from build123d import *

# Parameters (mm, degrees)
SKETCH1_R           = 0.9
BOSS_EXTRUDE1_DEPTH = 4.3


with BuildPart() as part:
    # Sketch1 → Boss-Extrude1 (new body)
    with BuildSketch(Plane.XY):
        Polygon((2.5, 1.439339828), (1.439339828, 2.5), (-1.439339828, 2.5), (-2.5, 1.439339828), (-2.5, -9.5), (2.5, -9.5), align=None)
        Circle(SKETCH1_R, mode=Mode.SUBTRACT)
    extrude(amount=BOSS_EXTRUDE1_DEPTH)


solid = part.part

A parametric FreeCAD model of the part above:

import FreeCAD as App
import Part
import Sketcher

V = App.Vector

doc = App.newDocument("Part")
body = doc.addObject("PartDesign::Body", "Body")

# Sketch on XY plane
sketch1 = body.newObject("Sketcher::SketchObject", "Sketch")
sketch1.AttachmentSupport = (doc.getObject("XY_Plane"), [""])
sketch1.MapMode = "FlatFace"
sketch1.addGeometry(Part.LineSegment(V(2.5, 1.4, 0), V(1.4, 2.5, 0)), False)
sketch1.addGeometry(Part.LineSegment(V(1.4, 2.5, 0), V(-1.4, 2.5, 0)), False)
sketch1.addGeometry(Part.LineSegment(V(-1.4, 2.5, 0), V(-2.5, 1.4, 0)), False)
sketch1.addGeometry(Part.LineSegment(V(-2.5, 1.4, 0), V(-2.5, -9.5, 0)), False)
sketch1.addGeometry(Part.LineSegment(V(-2.5, -9.5, 0), V(2.5, -9.5, 0)), False)
sketch1.addGeometry(Part.LineSegment(V(2.5, -9.5, 0), V(2.5, 1.4, 0)), False)
sketch1.addGeometry(Part.Circle(V(0, 0, 0), V(0, 0, 1), 0.9), False)
sketch1.addConstraint(Sketcher.Constraint("Coincident", 0, 2, 1, 1))
sketch1.addConstraint(Sketcher.Constraint("Coincident", 1, 2, 2, 1))
sketch1.addConstraint(Sketcher.Constraint("Coincident", 2, 2, 3, 1))
sketch1.addConstraint(Sketcher.Constraint("Coincident", 3, 2, 4, 1))
sketch1.addConstraint(Sketcher.Constraint("Coincident", 4, 2, 5, 1))
sketch1.addConstraint(Sketcher.Constraint("Coincident", 5, 2, 0, 1))
sketch1.addConstraint(Sketcher.Constraint("Horizontal", 1))
sketch1.addConstraint(Sketcher.Constraint("Vertical", 3))
sketch1.addConstraint(Sketcher.Constraint("Horizontal", 4))
sketch1.addConstraint(Sketcher.Constraint("Vertical", 5))
sketch1.addConstraint(Sketcher.Constraint("Coincident", 6, 3, -1, 1))
sketch1.addConstraint(Sketcher.Constraint("Symmetric", 2, 2, 5, 2, -2))
sketch1.addConstraint(Sketcher.Constraint("Perpendicular", 0, 2))
sketch1.addConstraint(Sketcher.Constraint("Equal", 0, 2))
sketch1.addConstraint(Sketcher.Constraint("Diameter", 6, 1.8))
sketch1.addConstraint(Sketcher.Constraint("DistanceX", 4, 1, 4, 2, 5.0))
sketch1.addConstraint(Sketcher.Constraint("DistanceY", 3, 2, 1, 2, 12.0))
sketch1.addConstraint(Sketcher.Constraint("Distance", 0, 1.5))
sketch1.addConstraint(Sketcher.Constraint("DistanceY", -1, 1, 0, 2, 2.5))
pad1 = body.newObject("PartDesign::Pad", "Pad")
pad1.Profile = sketch1
pad1.Length = 4.3

doc.recompute()
